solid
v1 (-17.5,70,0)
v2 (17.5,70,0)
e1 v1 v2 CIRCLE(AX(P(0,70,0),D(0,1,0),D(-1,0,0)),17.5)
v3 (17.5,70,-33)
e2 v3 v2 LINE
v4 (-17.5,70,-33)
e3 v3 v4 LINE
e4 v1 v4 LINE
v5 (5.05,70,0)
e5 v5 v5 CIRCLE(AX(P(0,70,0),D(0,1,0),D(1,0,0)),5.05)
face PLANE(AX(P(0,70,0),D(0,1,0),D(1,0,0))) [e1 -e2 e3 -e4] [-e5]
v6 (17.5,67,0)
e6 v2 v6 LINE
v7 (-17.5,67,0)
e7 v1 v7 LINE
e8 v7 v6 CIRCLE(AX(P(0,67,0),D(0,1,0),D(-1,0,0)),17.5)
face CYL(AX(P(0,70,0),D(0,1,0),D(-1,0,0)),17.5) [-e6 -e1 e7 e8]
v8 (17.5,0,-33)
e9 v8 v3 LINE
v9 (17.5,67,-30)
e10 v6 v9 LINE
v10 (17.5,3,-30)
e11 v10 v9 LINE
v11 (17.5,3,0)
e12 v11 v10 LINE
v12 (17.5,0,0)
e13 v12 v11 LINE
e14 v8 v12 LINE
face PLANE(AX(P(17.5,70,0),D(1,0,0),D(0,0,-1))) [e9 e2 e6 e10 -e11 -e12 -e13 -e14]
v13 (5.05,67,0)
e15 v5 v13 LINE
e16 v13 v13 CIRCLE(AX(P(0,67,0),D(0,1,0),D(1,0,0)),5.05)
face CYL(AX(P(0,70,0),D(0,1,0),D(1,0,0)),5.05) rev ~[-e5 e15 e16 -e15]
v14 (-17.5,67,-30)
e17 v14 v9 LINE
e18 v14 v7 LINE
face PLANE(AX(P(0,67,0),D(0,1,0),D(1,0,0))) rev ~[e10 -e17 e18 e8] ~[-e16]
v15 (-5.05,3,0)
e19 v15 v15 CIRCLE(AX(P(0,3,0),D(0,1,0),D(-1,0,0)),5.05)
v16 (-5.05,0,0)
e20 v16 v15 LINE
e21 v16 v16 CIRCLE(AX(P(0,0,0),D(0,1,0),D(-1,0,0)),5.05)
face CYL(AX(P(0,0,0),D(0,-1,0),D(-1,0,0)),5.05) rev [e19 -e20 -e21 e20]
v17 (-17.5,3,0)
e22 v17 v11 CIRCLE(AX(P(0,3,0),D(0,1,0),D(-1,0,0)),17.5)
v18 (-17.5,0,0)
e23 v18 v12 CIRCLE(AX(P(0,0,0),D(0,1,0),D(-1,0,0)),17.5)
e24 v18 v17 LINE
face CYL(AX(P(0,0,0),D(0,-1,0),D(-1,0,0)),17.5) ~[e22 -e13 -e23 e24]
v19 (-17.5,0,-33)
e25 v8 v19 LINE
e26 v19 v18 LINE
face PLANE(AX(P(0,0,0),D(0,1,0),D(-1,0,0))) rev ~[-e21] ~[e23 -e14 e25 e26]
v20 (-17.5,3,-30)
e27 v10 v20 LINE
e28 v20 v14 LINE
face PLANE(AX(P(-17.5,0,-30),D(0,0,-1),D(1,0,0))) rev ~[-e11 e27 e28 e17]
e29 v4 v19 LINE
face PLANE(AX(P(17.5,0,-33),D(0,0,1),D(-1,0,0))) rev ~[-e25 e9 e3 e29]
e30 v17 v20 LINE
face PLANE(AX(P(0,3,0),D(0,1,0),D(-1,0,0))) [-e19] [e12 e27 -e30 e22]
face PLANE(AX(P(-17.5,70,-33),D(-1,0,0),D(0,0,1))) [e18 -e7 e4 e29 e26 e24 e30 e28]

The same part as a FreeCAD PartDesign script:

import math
import FreeCAD as App
import Part
import Sketcher
from FreeCAD import Vector
Q = App.Units.Quantity


def add_polygon(sketch, points):
    """Adds a closed chain of lines whose ends are joined by coincident constraints."""
    first, n = sketch.GeometryCount, len(points)
    for a, b in zip(points, points[1:] + points[:1]):
        sketch.addGeometry(Part.LineSegment(App.Vector(*a, 0), App.Vector(*b, 0)), False)
    for i in range(n):
        sketch.addConstraint(Sketcher.Constraint("Coincident", first + i, 2, first + (i + 1) % n, 1))

doc = App.newDocument("Part")
params = doc.addObject("Spreadsheet::Sheet", "Params")
for row, (alias, value) in enumerate([
    ("sketch1_diameter", "10.1 mm"),
    ("sketch1_radius", "17.5 mm"),
    ("sketch1_height", "33 mm"),
    ("pad1_length", "3 mm"),
    ("sketch2_height", "3 mm"),
    ("sketch2_width", "35 mm"),
    ("pad2_length", "70 mm"),
    ("sketch3_diameter", "10.1 mm"),
    ("sketch3_radius", "17.5 mm"),
    ("sketch3_height", "33 mm"),
    ("pad3_length", "3 mm"),
], start=1):
    params.set(f"A{row}", alias)
    params.set(f"B{row}", "=" + value)
    params.setAlias(f"B{row}", alias)

body = doc.addObject("PartDesign::Body", "Body")

sketch1 = body.newObject("Sketcher::SketchObject", "Sketch")
sketch1.AttachmentSupport = (doc.getObject("XZ_Plane"), [""])
sketch1.MapMode = "FlatFace"
sketch1.addGeometry([
    Part.LineSegment(Vector(-17.5, -33, 0), Vector(-17.5, 0, 0)),
    Part.ArcOfCircle(Part.Circle(Vector(0, 0, 0), Vector(0, 0, 1), 17.5), math.radians(0), math.radians(180)),
    Part.LineSegment(Vector(17.5, 0, 0), Vector(17.5, -33, 0)),
    Part.LineSegment(Vector(17.5, -33, 0), Vector(-17.5, -33, 0)),
    Part.Circle(Vector(0, 0, 0), Vector(0, 0, 1), 5.05),
], False)
sketch1.addConstraint([
    Sketcher.Constraint("Tangent", 0, 2, 1, 2),
    Sketcher.Constraint("Tangent", 1, 1, 2, 1),
    Sketcher.Constraint("Coincident", 2, 2, 3, 1),
    Sketcher.Constraint("Coincident", 3, 2, 0, 1),
    Sketcher.Constraint("Vertical", 0),
    Sketcher.Constraint("Vertical", 2),
    Sketcher.Constraint("Horizontal", 3),
    Sketcher.Constraint("Coincident", 1, 3, -1, 1),
    Sketcher.Constraint("Coincident", 4, 3, -1, 1),
    Sketcher.Constraint("Diameter", 4, Q("10.1 mm")),
    Sketcher.Constraint("Radius", 1, Q("17.5 mm")),
    Sketcher.Constraint("DistanceY", 0, 1, 0, 2, Q("33 mm")),
])
sketch1.setExpression("Constraints[9]", "Params.sketch1_diameter")
sketch1.setExpression("Constraints[10]", "Params.sketch1_radius")
sketch1.setExpression("Constraints[11]", "Params.sketch1_height")
pad1 = body.newObject("PartDesign::Pad", "Pad")
pad1.Profile = sketch1
pad1.setExpression("Length", "Params.pad1_length")
pad1.Reversed = True

sketch2 = body.newObject("Sketcher::SketchObject", "Sketch001")
sketch2.AttachmentSupport = (doc.getObject("XZ_Plane"), [""])
sketch2.MapMode = "FlatFace"
add_polygon(sketch2, [(17.5, -33), (17.5, -30), (-17.5, -30), (-17.5, -33)])
sketch2.addConstraint([
    Sketcher.Constraint("Vertical", 0),
    Sketcher.Constraint("Horizontal", 1),
    Sketcher.Constraint("Vertical", 2),
    Sketcher.Constraint("Horizontal", 3),
    Sketcher.Constraint("DistanceY", 0, 1, 0, 2, Q("3 mm")),
    Sketcher.Constraint("DistanceX", 1, 2, 1, 1, Q("35 mm")),
    Sketcher.Constraint("DistanceY", 0, 2, -1, 1, Q("30 mm")),
    Sketcher.Constraint("DistanceX", -1, 1, 0, 2, Q("17.5 mm")),
])
sketch2.setExpression("Constraints[8]", "Params.sketch2_height")
sketch2.setExpression("Constraints[9]", "Params.sketch2_width")
pad2 = body.newObject("PartDesign::Pad", "Pad001")
pad2.Profile = sketch2
pad2.setExpression("Length", "Params.pad2_length")
pad2.Reversed = True

sketch3 = body.newObject("Sketcher::SketchObject", "Sketch002")
sketch3.AttachmentSupport = (doc.getObject("XZ_Plane"), [""])
sketch3.MapMode = "FlatFace"
sketch3.AttachmentOffset = App.Placement(Vector(0, 0, -70), App.Rotation())
sketch3.addGeometry([
    Part.ArcOfCircle(Part.Circle(Vector(0, 0, 0), Vector(0, 0, 1), 17.5), math.radians(0), math.radians(180)),
    Part.LineSegment(Vector(17.5, 0, 0), Vector(17.5, -33, 0)),
    Part.LineSegment(Vector(17.5, -33, 0), Vector(-17.5, -33, 0)),
    Part.LineSegment(Vector(-17.5, -33, 0), Vector(-17.5, 0, 0)),
    Part.Circle(Vector(0, 0, 0), Vector(0, 0, 1), 5.05),
], False)
sketch3.addConstraint([
    Sketcher.Constraint("Tangent", 0, 1, 1, 1),
    Sketcher.Constraint("Coincident", 1, 2, 2, 1),
    Sketcher.Constraint("Coincident", 2, 2, 3, 1),
    Sketcher.Constraint("Tangent", 3, 2, 0, 2),
    Sketcher.Constraint("Vertical", 1),
    Sketcher.Constraint("Horizontal", 2),
    Sketcher.Constraint("Vertical", 3),
    Sketcher.Constraint("Coincident", 0, 3, -1, 1),
    Sketcher.Constraint("Coincident", 4, 3, -1, 1),
    Sketcher.Constraint("Diameter", 4, Q("10.1 mm")),
    Sketcher.Constraint("Radius", 0, Q("17.5 mm")),
    Sketcher.Constraint("DistanceY", 1, 2, 1, 1, Q("33 mm")),
])
sketch3.setExpression("Constraints[9]", "Params.sketch3_diameter")
sketch3.setExpression("Constraints[10]", "Params.sketch3_radius")
sketch3.setExpression("Constraints[11]", "Params.sketch3_height")
pad3 = body.newObject("PartDesign::Pad", "Pad002")
pad3.Profile = sketch3
pad3.setExpression("Length", "Params.pad3_length")

doc.recompute()
